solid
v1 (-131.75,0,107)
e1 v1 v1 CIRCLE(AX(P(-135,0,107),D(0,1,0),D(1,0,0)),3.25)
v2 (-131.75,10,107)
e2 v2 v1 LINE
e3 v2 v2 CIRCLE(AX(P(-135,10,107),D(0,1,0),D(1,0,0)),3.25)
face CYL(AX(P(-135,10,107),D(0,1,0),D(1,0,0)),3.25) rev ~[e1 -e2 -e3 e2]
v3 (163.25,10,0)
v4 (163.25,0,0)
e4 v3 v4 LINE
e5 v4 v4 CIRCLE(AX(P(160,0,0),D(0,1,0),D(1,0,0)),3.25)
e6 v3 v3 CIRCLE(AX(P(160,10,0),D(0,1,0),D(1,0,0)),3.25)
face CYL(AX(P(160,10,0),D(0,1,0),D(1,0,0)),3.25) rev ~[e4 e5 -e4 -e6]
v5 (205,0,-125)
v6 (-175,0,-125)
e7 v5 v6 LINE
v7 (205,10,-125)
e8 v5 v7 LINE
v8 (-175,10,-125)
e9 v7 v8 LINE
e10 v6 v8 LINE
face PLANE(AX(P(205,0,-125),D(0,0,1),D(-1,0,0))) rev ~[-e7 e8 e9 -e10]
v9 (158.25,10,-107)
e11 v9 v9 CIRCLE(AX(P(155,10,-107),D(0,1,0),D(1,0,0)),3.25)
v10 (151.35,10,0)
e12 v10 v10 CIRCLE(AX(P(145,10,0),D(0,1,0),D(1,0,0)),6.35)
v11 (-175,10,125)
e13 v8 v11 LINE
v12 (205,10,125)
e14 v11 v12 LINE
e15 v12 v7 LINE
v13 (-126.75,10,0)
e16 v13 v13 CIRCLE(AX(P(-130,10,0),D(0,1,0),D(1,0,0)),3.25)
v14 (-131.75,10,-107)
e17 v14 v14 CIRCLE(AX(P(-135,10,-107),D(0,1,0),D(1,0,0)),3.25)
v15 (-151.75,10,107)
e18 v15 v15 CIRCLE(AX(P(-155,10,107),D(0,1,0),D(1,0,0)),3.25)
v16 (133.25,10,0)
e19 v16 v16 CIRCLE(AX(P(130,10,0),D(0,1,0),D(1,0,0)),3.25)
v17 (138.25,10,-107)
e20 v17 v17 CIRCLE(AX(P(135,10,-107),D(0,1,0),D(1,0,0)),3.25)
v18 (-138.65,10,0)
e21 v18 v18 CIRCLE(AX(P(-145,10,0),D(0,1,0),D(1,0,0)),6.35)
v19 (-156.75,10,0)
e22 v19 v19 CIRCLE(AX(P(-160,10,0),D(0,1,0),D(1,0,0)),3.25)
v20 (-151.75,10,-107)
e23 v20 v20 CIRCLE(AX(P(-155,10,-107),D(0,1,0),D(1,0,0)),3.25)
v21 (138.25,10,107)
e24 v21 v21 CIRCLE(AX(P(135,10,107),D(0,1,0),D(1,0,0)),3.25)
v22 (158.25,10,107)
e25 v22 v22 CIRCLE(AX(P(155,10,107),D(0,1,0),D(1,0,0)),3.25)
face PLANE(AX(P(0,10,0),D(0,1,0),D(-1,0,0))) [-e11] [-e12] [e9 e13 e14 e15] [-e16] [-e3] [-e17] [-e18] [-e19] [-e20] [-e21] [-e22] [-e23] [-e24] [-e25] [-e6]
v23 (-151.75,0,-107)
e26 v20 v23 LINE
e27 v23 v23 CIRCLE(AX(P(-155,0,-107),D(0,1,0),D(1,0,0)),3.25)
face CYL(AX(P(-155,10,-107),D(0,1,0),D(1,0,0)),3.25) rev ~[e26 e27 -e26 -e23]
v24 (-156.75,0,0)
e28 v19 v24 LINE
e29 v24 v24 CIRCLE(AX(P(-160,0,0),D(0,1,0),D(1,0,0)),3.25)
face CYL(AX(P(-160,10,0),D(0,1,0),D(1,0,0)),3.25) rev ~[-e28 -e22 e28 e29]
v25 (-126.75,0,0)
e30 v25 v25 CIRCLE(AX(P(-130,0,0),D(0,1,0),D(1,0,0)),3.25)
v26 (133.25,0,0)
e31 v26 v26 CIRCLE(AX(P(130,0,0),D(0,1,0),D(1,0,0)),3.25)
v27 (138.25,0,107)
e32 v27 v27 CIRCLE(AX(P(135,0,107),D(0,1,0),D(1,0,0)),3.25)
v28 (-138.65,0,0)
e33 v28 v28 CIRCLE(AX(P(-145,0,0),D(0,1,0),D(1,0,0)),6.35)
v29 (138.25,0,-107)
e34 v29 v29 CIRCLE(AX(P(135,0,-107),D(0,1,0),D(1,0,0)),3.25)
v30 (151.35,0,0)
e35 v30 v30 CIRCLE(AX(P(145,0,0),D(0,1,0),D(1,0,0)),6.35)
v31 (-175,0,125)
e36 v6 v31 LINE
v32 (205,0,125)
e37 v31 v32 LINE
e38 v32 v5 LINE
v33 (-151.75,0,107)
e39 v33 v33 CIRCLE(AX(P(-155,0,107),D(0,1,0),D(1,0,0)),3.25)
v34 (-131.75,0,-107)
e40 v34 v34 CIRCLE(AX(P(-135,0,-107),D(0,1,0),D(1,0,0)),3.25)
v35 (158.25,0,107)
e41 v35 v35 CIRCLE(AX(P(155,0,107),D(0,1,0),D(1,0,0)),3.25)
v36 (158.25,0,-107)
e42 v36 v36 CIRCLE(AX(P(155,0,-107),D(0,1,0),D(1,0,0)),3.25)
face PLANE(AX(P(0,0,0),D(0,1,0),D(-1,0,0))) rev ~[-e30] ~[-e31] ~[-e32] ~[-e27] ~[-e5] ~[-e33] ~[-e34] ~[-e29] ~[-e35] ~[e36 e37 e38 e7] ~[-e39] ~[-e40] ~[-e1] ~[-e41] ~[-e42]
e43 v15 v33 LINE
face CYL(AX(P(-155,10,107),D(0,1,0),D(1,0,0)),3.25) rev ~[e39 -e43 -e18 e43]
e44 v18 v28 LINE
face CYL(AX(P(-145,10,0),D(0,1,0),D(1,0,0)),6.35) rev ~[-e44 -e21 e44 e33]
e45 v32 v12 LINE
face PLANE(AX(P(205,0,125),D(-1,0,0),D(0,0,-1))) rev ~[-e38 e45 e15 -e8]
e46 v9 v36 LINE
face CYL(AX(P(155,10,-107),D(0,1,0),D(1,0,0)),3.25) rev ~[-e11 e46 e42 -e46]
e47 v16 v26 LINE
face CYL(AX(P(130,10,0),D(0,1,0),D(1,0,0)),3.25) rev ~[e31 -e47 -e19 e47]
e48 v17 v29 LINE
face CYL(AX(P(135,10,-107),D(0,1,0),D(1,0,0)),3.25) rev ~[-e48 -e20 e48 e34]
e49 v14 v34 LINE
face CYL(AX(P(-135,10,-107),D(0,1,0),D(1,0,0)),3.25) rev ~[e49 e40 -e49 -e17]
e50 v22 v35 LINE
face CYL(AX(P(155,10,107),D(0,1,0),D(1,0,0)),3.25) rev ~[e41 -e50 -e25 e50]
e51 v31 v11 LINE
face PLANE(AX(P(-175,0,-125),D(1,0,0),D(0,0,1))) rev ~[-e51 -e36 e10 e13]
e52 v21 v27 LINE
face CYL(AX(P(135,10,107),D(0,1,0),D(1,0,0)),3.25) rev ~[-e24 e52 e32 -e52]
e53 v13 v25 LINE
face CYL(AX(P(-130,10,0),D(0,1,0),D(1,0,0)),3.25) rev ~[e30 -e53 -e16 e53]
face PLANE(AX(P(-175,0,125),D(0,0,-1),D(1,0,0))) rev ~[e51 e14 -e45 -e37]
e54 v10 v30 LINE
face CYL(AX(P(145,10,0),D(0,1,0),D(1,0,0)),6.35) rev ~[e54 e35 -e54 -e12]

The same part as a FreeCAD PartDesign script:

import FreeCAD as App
import Part
import Sketcher

V = App.Vector


def add_polygon(sketch, points):
    """Adds a closed chain of lines whose ends are joined by coincident constraints."""
    first, n = sketch.GeometryCount, len(points)
    for a, b in zip(points, points[1:] + points[:1]):
        sketch.addGeometry(Part.LineSegment(App.Vector(*a, 0), App.Vector(*b, 0)), False)
    for i in range(n):
        sketch.addConstraint(Sketcher.Constraint("Coincident", first + i, 2, first + (i + 1) % n, 1))

doc = App.newDocument("Part")
body = doc.addObject("PartDesign::Body", "Body")

# Sketch on XZ plane
sketch1 = body.newObject("Sketcher::SketchObject", "Sketch")
sketch1.AttachmentSupport = (doc.getObject("XZ_Plane"), [""])
sketch1.MapMode = "FlatFace"
add_polygon(sketch1, [(-175, -125), (-175, 125), (205, 125), (205, -125)])  # lines 0-3
sketch1.addConstraint([
    Sketcher.Constraint("Vertical", 0),
    Sketcher.Constraint("Horizontal", 1),
    Sketcher.Constraint("Vertical", 2),
    Sketcher.Constraint("Horizontal", 3),
    Sketcher.Constraint("DistanceX", 1, 1, 1, 2, 380.0),
    Sketcher.Constraint("DistanceY", 0, 1, 0, 2, 250.0),
    Sketcher.Constraint("DistanceX", 0, 2, -1, 1, 175.0),
    Sketcher.Constraint("DistanceY", -1, 1, 0, 2, 125.0),
])
pad1 = body.newObject("PartDesign::Pad", "Pad")
pad1.Profile = sketch1
pad1.Length = 10
pad1.Reversed = True

# Sketch on XZ plane
sketch2 = body.newObject("Sketcher::SketchObject", "Sketch001")
sketch2.AttachmentSupport = (doc.getObject("XZ_Plane"), [""])
sketch2.MapMode = "FlatFace"
sketch2.AttachmentOffset = App.Placement(V(0, 0, -10), App.Rotation())
sketch2.addGeometry([
    Part.Circle(V(-145, 0, 0), V(0, 0, 1), 6.35),  # 0
    Part.Circle(V(145, 0, 0), V(0, 0, 1), 6.35),  # 1
    Part.Circle(V(-160, 0, 0), V(0, 0, 1), 3.25),  # 2
    Part.Circle(V(-130, 0, 0), V(0, 0, 1), 3.25),  # 3
    Part.Circle(V(160, 0, 0), V(0, 0, 1), 3.25),  # 4
    Part.Circle(V(130, 0, 0), V(0, 0, 1), 3.25),  # 5
    Part.Circle(V(-155, 107, 0), V(0, 0, 1), 3.25),  # 6
    Part.Circle(V(-135, 107, 0), V(0, 0, 1), 3.25),  # 7
    Part.Circle(V(-155, -107, 0), V(0, 0, 1), 3.25),  # 8
    Part.Circle(V(-135, -107, 0), V(0, 0, 1), 3.25),  # 9
    Part.Circle(V(155, -107, 0), V(0, 0, 1), 3.25),  # 10
    Part.Circle(V(135, -107, 0), V(0, 0, 1), 3.25),  # 11
    Part.Circle(V(155, 107, 0), V(0, 0, 1), 3.25),  # 12
    Part.Circle(V(135, 107, 0), V(0, 0, 1), 3.25),  # 13
], False)
sketch2.addConstraint([
    Sketcher.Constraint("Equal", 0, 1),
    Sketcher.Constraint("Equal", 2, 3),
    Sketcher.Constraint("Equal", 3, 4),
    Sketcher.Constraint("Equal", 4, 5),
    Sketcher.Constraint("Equal", 5, 6),
    Sketcher.Constraint("Equal", 6, 7),
    Sketcher.Constraint("Equal", 7, 8),
    Sketcher.Constraint("Equal", 8, 9),
    Sketcher.Constraint("Equal", 9, 10),
    Sketcher.Constraint("Equal", 10, 11),
    Sketcher.Constraint("Equal", 11, 12),
    Sketcher.Constraint("Equal", 12, 13),
    Sketcher.Constraint("Symmetric", 0, 3, 1, 3, -1, 1),
    Sketcher.Constraint("Symmetric", 2, 3, 4, 3, -1, 1),
    Sketcher.Constraint("Symmetric", 3, 3, 5, 3, -1, 1),
    Sketcher.Constraint("Symmetric", 6, 3, 10, 3, -1, 1),
    Sketcher.Constraint("Symmetric", 7, 3, 11, 3, -1, 1),
    Sketcher.Constraint("Symmetric", 8, 3, 12, 3, -1, 1),
    Sketcher.Constraint("Symmetric", 9, 3, 13, 3, -1, 1),
    Sketcher.Constraint("Symmetric", 8, 3, 10, 3, -2),
    Sketcher.Constraint("Symmetric", 9, 3, 11, 3, -2),
    Sketcher.Constraint("PointOnObject", 0, 3, -1),
    Sketcher.Constraint("PointOnObject", 2, 3, -1),
    Sketcher.Constraint("PointOnObject", 3, 3, -1),
    Sketcher.Constraint("Horizontal", 6, 3, 7, 3),
    Sketcher.Constraint("Diameter", 0, 12.7),
    Sketcher.Constraint("Diameter", 2, 6.5),
    Sketcher.Constraint("DistanceX", 2, 3, 0, 3, 15.0),
    Sketcher.Constraint("DistanceX", 0, 3, 3, 3, 15.0),
    Sketcher.Constraint("DistanceX", 6, 3, 0, 3, 10.0),
    Sketcher.Constraint("DistanceX", 0, 3, 7, 3, 10.0),
    Sketcher.Constraint("DistanceX", 0, 3, -1, 1, 145.0),
    Sketcher.Constraint("DistanceY", -1, 1, 6, 3, 107.0),
])
pocket1 = body.newObject("PartDesign::Pocket", "Pocket")
pocket1.Profile = sketch2
pocket1.Length = 10
pocket1.Reversed = True

doc.recompute()
